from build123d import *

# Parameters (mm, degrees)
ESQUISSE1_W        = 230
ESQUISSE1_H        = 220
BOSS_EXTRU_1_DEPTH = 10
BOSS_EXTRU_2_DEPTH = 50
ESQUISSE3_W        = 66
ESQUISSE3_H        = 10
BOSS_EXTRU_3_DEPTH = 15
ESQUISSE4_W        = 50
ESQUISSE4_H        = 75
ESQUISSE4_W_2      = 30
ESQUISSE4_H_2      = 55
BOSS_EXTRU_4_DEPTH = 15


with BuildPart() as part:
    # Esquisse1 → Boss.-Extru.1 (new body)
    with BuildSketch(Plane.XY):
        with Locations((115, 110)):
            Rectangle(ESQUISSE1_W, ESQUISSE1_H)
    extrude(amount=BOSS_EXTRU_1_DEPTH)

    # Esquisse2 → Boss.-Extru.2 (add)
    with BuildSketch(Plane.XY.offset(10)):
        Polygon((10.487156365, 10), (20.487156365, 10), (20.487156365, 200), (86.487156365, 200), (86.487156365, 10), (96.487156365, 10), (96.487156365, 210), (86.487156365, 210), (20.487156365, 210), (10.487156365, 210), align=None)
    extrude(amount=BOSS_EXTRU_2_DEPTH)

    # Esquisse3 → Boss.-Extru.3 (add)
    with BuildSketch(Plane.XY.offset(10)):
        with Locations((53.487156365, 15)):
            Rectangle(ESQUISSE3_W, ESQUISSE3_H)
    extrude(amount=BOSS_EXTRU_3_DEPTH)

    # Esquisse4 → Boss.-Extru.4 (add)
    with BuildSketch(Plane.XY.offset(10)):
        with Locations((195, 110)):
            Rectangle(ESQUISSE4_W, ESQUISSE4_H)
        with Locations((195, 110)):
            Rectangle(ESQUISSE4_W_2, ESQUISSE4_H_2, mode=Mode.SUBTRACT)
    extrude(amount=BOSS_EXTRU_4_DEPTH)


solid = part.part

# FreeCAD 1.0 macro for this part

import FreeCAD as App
import Part
import Sketcher


def add_polygon(sketch, points):
    """Adds a closed chain of lines whose ends are joined by coincident constraints."""
    first, n = sketch.GeometryCount, len(points)
    for a, b in zip(points, points[1:] + points[:1]):
        sketch.addGeometry(Part.LineSegment(App.Vector(*a, 0), App.Vector(*b, 0)), False)
    for i in range(n):
        sketch.addConstraint(Sketcher.Constraint("Coincident", first + i, 2, first + (i + 1) % n, 1))

doc = App.newDocument("Part")
body = doc.addObject("PartDesign::Body", "Body")

# Sketch on XY plane
sketch1 = body.newObject("Sketcher::SketchObject", "Sketch")
sketch1.AttachmentSupport = (doc.getObject("XY_Plane"), [""])
sketch1.MapMode = "FlatFace"
add_polygon(sketch1, [(0, 220), (0, 0), (230, 0), (230, 220)])  # lines 0-3
sketch1.addConstraint([
    Sketcher.Constraint("Vertical", 0),
    Sketcher.Constraint("Horizontal", 1),
    Sketcher.Constraint("Vertical", 2),
    Sketcher.Constraint("Horizontal", 3),
    Sketcher.Constraint("Coincident", 0, 2, -1, 1),
    Sketcher.Constraint("DistanceX", 1, 1, 1, 2, 230.0),
    Sketcher.Constraint("DistanceY", 0, 2, 0, 1, 220.0),
])
pad1 = body.newObject("PartDesign::Pad", "Pad")
pad1.Profile = sketch1
pad1.Length = 10

# Sketch on XY plane
sketch2 = body.newObject("Sketcher::SketchObject", "Sketch001")
sketch2.AttachmentSupport = (doc.getObject("XY_Plane"), [""])
sketch2.MapMode = "FlatFace"
sketch2.AttachmentOffset = App.Placement(App.Vector(0, 0, 10), App.Rotation())
add_polygon(sketch2, [(10, 10), (20, 10), (20, 200), (86, 200), (86, 10), (96, 10), (96, 210), (10, 210)])  # lines 0-7
sketch2.addConstraint([
    Sketcher.Constraint("Horizontal", 0),
    Sketcher.Constraint("Vertical", 1),
    Sketcher.Constraint("Horizontal", 2),
    Sketcher.Constraint("Vertical", 3),
    Sketcher.Constraint("Horizontal", 4),
    Sketcher.Constraint("Vertical", 5),
    Sketcher.Constraint("Horizontal", 6),
    Sketcher.Constraint("Vertical", 7),
    Sketcher.Constraint("Horizontal", 0, 2, 3, 2),
    Sketcher.Constraint("Equal", 0, 4),
    Sketcher.Constraint("DistanceX", 0, 1, 0, 2, 10.0),
    Sketcher.Constraint("DistanceX", 2, 1, 2, 2, 66.0),
    Sketcher.Constraint("DistanceY", 1, 1, 1, 2, 190.0),
    Sketcher.Constraint("DistanceY", 5, 1, 5, 2, 200.0),
    Sketcher.Constraint("DistanceY", -1, 1, 0, 2, 10.0),
    Sketcher.Constraint("DistanceX", -1, 1, 0, 2, 20.487156),
])
pad2 = body.newObject("PartDesign::Pad", "Pad001")
pad2.Profile = sketch2
pad2.Length = 50

# Sketch on XY plane
sketch3 = body.newObject("Sketcher::SketchObject", "Sketch002")
sketch3.AttachmentSupport = (doc.getObject("XY_Plane"), [""])
sketch3.MapMode = "FlatFace"
sketch3.AttachmentOffset = App.Placement(App.Vector(0, 0, 10), App.Rotation())
add_polygon(sketch3, [(20, 20), (20, 10), (86, 10), (86, 20)])  # lines 0-3
sketch3.addConstraint([
    Sketcher.Constraint("Vertical", 0),
    Sketcher.Constraint("Horizontal", 1),
    Sketcher.Constraint("Vertical", 2),
    Sketcher.Constraint("Horizontal", 3),
    Sketcher.Constraint("DistanceX", 1, 1, 1, 2, 66.0),
    Sketcher.Constraint("DistanceY", 0, 2, 0, 1, 10.0),
    Sketcher.Constraint("DistanceY", -1, 1, 0, 2, 10.0),
    Sketcher.Constraint("DistanceX", -1, 1, 0, 2, 20.487156),
])
pad3 = body.newObject("PartDesign::Pad", "Pad002")
pad3.Profile = sketch3
pad3.Length = 15

# Sketch on XY plane
sketch4 = body.newObject("Sketcher::SketchObject", "Sketch003")
sketch4.AttachmentSupport = (doc.getObject("XY_Plane"), [""])
sketch4.MapMode = "FlatFace"
sketch4.AttachmentOffset = App.Placement(App.Vector(0, 0, 10), App.Rotation())
add_polygon(sketch4, [(170, 148), (170, 72), (220, 72), (220, 148)])  # lines 0-3
add_polygon(sketch4, [(210, 82), (180, 82), (180, 138), (210, 138)])  # lines 4-7
sketch4.addConstraint([
    Sketcher.Constraint("Vertical", 0),
    Sketcher.Constraint("Horizontal", 1),
    Sketcher.Constraint("Vertical", 2),
    Sketcher.Constraint("Horizontal", 3),
    Sketcher.Constraint("Horizontal", 4),
    Sketcher.Constraint("Vertical", 5),
    Sketcher.Constraint("Horizontal", 6),
    Sketcher.Constraint("Vertical", 7),
    Sketcher.Constraint("DistanceX", 1, 1, 1, 2, 50.0),
    Sketcher.Constraint("DistanceX", 4, 2, 4, 1, 30.0),
    Sketcher.Constraint("DistanceY", 0, 2, 0, 1, 75.0),
    Sketcher.Constraint("DistanceY", 5, 1, 5, 2, 55.0),
    Sketcher.Constraint("DistanceX", -1, 1, 0, 2, 170.0),
    Sketcher.Constraint("DistanceX", -1, 1, 4, 2, 180.0),
    Sketcher.Constraint("DistanceY", 0, 2, 4, 2, 10.0),
    Sketcher.Constraint("DistanceY", -1, 1, 0, 2, 72.5),
])
pad4 = body.newObject("PartDesign::Pad", "Pad003")
pad4.Profile = sketch4
pad4.Length = 15

doc.recompute()
